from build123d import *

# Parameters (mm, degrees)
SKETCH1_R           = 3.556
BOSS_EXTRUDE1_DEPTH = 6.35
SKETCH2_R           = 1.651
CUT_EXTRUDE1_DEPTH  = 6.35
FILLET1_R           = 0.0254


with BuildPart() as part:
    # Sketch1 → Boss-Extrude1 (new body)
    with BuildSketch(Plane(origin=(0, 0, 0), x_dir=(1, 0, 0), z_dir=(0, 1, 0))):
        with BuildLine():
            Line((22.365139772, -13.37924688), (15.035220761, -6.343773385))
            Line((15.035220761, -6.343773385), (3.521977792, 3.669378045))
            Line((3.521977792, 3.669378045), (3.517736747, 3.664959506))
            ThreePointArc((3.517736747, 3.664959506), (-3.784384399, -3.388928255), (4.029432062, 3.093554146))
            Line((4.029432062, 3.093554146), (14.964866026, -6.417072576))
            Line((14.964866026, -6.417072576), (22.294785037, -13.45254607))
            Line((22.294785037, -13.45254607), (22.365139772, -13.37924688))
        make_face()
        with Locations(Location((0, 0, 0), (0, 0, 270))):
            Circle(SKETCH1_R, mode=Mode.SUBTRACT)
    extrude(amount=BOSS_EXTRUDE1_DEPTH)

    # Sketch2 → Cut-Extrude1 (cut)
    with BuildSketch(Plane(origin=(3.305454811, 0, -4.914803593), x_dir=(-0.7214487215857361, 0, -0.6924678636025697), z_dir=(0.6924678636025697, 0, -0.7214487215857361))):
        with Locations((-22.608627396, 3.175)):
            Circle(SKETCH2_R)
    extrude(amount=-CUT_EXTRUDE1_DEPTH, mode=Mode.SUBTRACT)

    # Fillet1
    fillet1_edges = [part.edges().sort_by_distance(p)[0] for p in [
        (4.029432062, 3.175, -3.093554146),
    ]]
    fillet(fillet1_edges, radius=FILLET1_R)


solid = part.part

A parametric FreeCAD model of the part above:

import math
import FreeCAD as App
import Part
import Sketcher

V = App.Vector
Q = App.Units.Quantity


def edges_at(feature, points):
    """Names of the edges that pass closest to the given points."""
    edges = feature.Shape.Edges
    near = lambda p: min(range(len(edges)), key=lambda i: edges[i].distToShape(Part.Vertex(*p))[0])
    return sorted({f"Edge{near(p) + 1}" for p in points})

doc = App.newDocument("Part")
body = doc.addObject("PartDesign::Body", "Body")

sketch1 = body.newObject("Sketcher::SketchObject", "Sketch")
sketch1.AttachmentSupport = (doc.getObject("XZ_Plane"), [""])
sketch1.MapMode = "FlatFace"
sketch1.addGeometry([
    Part.LineSegment(V(22.36514, 13.379247, 0), V(15.035221, 6.343773, 0)),
    Part.LineSegment(V(15.035221, 6.343773, 0), V(3.521978, -3.669378, 0)),
    Part.LineSegment(V(3.521978, -3.669378, 0), V(3.517737, -3.66496, 0)),
    Part.ArcOfCircle(Part.Circle(V(0, 0, 0), V(0, 0, 1), 5.08), math.radians(-37.514873), math.radians(313.825781)),
    Part.LineSegment(V(4.029432, -3.093554, 0), V(14.964866, 6.417073, 0)),
    Part.LineSegment(V(14.964866, 6.417073, 0), V(22.294785, 13.452546, 0)),
    Part.LineSegment(V(22.294785, 13.452546, 0), V(22.36514, 13.379247, 0)),
    Part.Circle(V(0, 0, 0), V(0, 0, 1), 3.556),
], False)
sketch1.addConstraint([
    Sketcher.Constraint("Coincident", 0, 2, 1, 1),
    Sketcher.Constraint("Coincident", 1, 2, 2, 1),
    Sketcher.Constraint("Coincident", 2, 2, 3, 2),
    Sketcher.Constraint("Coincident", 3, 1, 4, 1),
    Sketcher.Constraint("Coincident", 4, 2, 5, 1),
    Sketcher.Constraint("Coincident", 5, 2, 6, 1),
    Sketcher.Constraint("Coincident", 6, 2, 0, 1),
    Sketcher.Constraint("Coincident", 3, 3, -1, 1),
    Sketcher.Constraint("Coincident", 7, 3, -1, 1),
    Sketcher.Constraint("Radius", 3, Q("0.2 in")),
    Sketcher.Constraint("Diameter", 7, Q("0.28 in")),
    Sketcher.Constraint("Distance", 0, Q("0.4 in")),
    Sketcher.Constraint("Distance", 5, Q("0.4 in")),
    Sketcher.Constraint("Distance", 6, Q("0.004 in")),
    Sketcher.Constraint("DistanceY", 0, 2, 4, 2, 0.073299),
    Sketcher.Constraint("DistanceY", 3, 1, 5, 2, 16.5461),
    Sketcher.Constraint("DistanceY", 6, 2, 5, 2, 0.073299),
    Sketcher.Constraint("Distance", 4, 14.49261),
    Sketcher.Constraint("DistanceX", -1, 1, 0, 2, 15.035221),
    Sketcher.Constraint("DistanceY", 1, 2, -1, 1, 3.669378),
    Sketcher.Constraint("DistanceY", 2, 2, -1, 1, 3.66496),
    Sketcher.Constraint("DistanceX", -1, 1, 6, 2, 22.36514),
    Sketcher.Constraint("DistanceX", 2, 2, 1, 2, 0.004241),
])
pad1 = body.newObject("PartDesign::Pad", "Pad")
pad1.Profile = sketch1
pad1.Length = Q("0.25 in")
pad1.Reversed = True

sketch2 = body.newObject("Sketcher::SketchObject", "Sketch001")
sketch2.Placement = App.Placement(V(3.305455, 0, -4.914804), App.Rotation(V(-0.721448722, 0, -0.692467864), V(0, 1.000000001, 0), V(0.692467864, 0, -0.721448722), "ZXY"))
sketch2.addGeometry(Part.Circle(V(-22.6, 3.2, 0), V(0, 0, 1), 1.7), False)
sketch2.addConstraint([
    Sketcher.Constraint("Diameter", 0, Q("0.13 in")),
    Sketcher.Constraint("DistanceY", -1, 1, 0, 3, Q("0.125 in")),
    Sketcher.Constraint("DistanceX", 0, 3, -1, 1, 22.608627),
])
pocket1 = body.newObject("PartDesign::Pocket", "Pocket")
pocket1.Profile = sketch2
pocket1.Length = Q("0.25 in")
doc.recompute()

fillet = body.newObject("PartDesign::Fillet", "Fillet")
fillet.Base = (pocket1, edges_at(pocket1, [(4.029, 3.175, -3.094)]))
fillet.Radius = Q("0.001 in")

doc.recompute()
